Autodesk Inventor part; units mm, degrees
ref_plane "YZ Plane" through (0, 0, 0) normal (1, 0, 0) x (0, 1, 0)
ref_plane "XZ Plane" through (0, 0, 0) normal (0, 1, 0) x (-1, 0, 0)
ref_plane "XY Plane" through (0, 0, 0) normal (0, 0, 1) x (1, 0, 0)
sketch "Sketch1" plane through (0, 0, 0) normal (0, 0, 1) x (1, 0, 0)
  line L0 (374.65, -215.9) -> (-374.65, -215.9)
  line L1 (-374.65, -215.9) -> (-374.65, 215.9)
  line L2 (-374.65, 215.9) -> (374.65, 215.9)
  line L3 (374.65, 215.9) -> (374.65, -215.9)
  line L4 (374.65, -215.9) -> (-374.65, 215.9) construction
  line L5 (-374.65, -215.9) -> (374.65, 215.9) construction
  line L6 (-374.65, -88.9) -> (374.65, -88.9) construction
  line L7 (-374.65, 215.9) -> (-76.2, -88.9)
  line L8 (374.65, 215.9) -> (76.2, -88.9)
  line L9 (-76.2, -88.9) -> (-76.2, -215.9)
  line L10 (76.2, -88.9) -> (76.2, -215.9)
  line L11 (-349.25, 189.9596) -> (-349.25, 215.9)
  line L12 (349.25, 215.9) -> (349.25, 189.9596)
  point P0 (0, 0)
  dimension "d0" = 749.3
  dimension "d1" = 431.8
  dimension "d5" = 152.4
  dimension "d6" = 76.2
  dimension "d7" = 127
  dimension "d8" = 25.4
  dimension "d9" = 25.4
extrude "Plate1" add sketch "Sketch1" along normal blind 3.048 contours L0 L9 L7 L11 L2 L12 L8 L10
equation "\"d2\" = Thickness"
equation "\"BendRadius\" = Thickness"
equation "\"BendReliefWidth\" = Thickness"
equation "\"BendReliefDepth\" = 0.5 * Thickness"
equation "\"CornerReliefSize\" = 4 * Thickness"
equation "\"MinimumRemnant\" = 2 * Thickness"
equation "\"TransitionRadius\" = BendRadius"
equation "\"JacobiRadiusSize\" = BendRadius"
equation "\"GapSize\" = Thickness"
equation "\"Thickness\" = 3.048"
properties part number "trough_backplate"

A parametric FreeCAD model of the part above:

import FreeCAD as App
import Part
import Sketcher
from FreeCAD import Vector
Q = App.Units.Quantity


def add_polygon(sketch, points):
    """Adds a closed chain of lines whose ends are joined by coincident constraints."""
    first, n = sketch.GeometryCount, len(points)
    for a, b in zip(points, points[1:] + points[:1]):
        sketch.addGeometry(Part.LineSegment(App.Vector(*a, 0), App.Vector(*b, 0)), False)
    for i in range(n):
        sketch.addConstraint(Sketcher.Constraint("Coincident", first + i, 2, first + (i + 1) % n, 1))

doc = App.newDocument("Part")
body = doc.addObject("PartDesign::Body", "Body")

sketch1 = body.newObject("Sketcher::SketchObject", "Sketch")
sketch1.AttachmentSupport = (doc.getObject("XY_Plane"), [""])
sketch1.MapMode = "FlatFace"
add_polygon(sketch1, [(-76, -216), (76, -216), (76, -89), (349, 190), (349, 216), (-349, 216), (-349, 190), (-76, -89)])
sketch1.addConstraint([
    Sketcher.Constraint("Horizontal", 0),
    Sketcher.Constraint("Vertical", 1),
    Sketcher.Constraint("Vertical", 3),
    Sketcher.Constraint("Horizontal", 4),
    Sketcher.Constraint("Vertical", 5),
    Sketcher.Constraint("Vertical", 7),
    Sketcher.Constraint("Symmetric", 2, 2, 5, 2, -2),
    Sketcher.Constraint("Symmetric", 1, 2, 6, 2, -2),
    Sketcher.Constraint("DistanceX", 0, 1, 0, 2, Q("6 in")),
    Sketcher.Constraint("DistanceY", 1, 1, 1, 2, Q("5 in")),
    Sketcher.Constraint("DistanceY", 0, 2, 3, 2, Q("17 in")),
    Sketcher.Constraint("DistanceX", 4, 2, 4, 1, Q("27.5 in")),
    Sketcher.Constraint("DistanceY", 0, 2, -1, 1, Q("8.5 in")),
    Sketcher.Constraint("DistanceY", 3, 1, 3, 2, Q("25.9404 mm")),
])
pad1 = body.newObject("PartDesign::Pad", "Pad")
pad1.Profile = sketch1
pad1.Length = Q("0.12 in")

doc.recompute()
